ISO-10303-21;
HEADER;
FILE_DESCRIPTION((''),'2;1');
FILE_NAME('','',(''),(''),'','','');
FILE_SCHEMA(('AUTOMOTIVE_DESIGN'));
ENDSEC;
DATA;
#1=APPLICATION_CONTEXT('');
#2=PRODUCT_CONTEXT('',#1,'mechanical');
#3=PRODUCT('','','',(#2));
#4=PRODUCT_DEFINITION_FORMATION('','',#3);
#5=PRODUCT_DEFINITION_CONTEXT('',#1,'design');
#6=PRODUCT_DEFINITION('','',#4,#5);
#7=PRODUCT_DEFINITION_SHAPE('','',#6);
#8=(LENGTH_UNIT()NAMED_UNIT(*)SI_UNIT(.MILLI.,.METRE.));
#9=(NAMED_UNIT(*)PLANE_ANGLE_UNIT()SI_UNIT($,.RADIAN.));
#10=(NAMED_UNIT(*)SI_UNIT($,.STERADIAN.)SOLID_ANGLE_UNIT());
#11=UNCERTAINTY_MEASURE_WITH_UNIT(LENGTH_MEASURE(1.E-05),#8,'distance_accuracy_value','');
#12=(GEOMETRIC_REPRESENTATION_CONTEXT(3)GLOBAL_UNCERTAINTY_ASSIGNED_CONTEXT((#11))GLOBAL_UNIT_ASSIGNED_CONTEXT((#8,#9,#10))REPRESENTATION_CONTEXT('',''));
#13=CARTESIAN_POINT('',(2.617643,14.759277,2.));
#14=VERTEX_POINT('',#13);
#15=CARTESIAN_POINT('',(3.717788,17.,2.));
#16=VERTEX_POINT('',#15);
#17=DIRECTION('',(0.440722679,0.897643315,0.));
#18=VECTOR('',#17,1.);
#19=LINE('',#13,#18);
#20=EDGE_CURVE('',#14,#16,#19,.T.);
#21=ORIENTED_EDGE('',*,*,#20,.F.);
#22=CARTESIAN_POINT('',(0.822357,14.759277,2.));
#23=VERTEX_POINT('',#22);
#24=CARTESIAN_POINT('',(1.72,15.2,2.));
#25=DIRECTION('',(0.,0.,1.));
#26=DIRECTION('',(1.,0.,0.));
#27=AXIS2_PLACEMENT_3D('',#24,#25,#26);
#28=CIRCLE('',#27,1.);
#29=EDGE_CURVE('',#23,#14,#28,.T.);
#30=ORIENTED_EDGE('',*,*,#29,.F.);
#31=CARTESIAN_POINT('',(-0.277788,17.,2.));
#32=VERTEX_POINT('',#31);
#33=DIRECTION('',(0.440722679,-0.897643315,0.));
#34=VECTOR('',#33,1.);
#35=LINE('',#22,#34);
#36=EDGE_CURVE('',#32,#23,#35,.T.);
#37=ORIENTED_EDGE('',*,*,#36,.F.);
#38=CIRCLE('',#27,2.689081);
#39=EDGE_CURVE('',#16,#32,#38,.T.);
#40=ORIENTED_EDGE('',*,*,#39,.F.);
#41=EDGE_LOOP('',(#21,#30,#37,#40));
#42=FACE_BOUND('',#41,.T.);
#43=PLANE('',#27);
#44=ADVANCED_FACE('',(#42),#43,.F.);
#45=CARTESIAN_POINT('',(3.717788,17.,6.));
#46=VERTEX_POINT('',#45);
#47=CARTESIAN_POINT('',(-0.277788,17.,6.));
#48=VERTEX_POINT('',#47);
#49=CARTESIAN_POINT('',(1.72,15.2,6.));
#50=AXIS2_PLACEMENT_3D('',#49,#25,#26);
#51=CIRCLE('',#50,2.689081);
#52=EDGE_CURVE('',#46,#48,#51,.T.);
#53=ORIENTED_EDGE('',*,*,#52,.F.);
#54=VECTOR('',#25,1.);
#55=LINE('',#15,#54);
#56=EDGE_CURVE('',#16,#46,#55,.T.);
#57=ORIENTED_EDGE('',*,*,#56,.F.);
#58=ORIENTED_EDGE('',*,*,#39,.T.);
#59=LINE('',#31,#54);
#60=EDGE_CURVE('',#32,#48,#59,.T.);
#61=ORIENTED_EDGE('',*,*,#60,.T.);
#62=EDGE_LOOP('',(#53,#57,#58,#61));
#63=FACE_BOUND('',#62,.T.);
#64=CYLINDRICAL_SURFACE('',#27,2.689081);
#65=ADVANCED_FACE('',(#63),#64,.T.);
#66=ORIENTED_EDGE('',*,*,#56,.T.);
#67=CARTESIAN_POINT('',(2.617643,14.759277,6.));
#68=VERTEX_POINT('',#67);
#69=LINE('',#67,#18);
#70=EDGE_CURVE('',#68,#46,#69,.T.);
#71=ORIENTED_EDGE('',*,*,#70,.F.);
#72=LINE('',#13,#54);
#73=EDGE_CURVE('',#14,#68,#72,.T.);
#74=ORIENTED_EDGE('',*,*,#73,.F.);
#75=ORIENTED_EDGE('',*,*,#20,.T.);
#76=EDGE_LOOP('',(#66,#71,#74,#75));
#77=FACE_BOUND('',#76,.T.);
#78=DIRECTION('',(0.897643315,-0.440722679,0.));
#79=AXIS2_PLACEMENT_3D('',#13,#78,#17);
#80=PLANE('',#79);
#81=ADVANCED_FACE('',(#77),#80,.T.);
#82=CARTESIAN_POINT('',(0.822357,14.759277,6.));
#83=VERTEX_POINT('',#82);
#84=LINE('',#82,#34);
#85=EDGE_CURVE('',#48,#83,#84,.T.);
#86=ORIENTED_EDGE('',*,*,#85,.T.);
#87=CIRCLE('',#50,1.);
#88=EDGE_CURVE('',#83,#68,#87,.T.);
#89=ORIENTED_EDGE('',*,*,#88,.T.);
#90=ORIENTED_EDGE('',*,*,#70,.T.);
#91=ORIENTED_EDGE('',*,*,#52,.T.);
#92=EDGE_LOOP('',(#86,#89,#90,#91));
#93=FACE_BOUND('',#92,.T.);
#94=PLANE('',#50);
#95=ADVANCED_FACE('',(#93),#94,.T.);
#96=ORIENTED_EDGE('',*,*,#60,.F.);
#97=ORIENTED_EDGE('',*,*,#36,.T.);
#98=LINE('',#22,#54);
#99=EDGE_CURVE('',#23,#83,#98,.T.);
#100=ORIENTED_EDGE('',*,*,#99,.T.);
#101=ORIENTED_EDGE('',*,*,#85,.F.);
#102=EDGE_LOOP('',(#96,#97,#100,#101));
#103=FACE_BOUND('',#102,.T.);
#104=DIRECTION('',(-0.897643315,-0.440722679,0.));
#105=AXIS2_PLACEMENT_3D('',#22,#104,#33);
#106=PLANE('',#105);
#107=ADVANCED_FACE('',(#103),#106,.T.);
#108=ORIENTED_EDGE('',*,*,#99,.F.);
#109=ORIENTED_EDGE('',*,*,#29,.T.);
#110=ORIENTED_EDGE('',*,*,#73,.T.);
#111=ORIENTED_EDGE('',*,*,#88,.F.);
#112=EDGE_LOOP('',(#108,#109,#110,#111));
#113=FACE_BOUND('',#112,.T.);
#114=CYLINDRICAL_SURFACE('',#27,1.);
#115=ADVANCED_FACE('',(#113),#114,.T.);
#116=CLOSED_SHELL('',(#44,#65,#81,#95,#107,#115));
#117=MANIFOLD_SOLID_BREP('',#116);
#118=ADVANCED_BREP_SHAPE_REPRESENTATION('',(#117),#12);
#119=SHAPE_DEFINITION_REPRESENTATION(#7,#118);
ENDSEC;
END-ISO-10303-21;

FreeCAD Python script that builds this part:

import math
import FreeCAD as App
import Part
import Sketcher

V = App.Vector
Q = App.Units.Quantity

doc = App.newDocument("Part")
body = doc.addObject("PartDesign::Body", "Body")

# Sketch on XY plane
sketch1 = body.newObject("Sketcher::SketchObject", "Sketch")
sketch1.AttachmentSupport = (doc.getObject("XY_Plane"), [""])
sketch1.MapMode = "FlatFace"
sketch1.AttachmentOffset = App.Placement(V(0, 0, 6), App.Rotation())
sketch1.addGeometry([
    Part.LineSegment(V(-0.3, 17, 0), V(0.8, 14.8, 0)),
    Part.ArcOfCircle(Part.Circle(V(1.7, 15.2, 0), V(0, 0, 1), 1), math.radians(-154), math.radians(-26)),
    Part.LineSegment(V(2.6, 14.8, 0), V(3.7, 17, 0)),
    Part.ArcOfCircle(Part.Circle(V(1.7, 15.2, 0), V(0, 0, 1), 2.7), math.radians(42), math.radians(138)),
], False)
sketch1.addConstraint([
    Sketcher.Constraint("Tangent", 0, 2, 1, 1),
    Sketcher.Constraint("Tangent", 1, 2, 2, 1),
    Sketcher.Constraint("Coincident", 2, 2, 3, 1),
    Sketcher.Constraint("Coincident", 3, 2, 0, 1),
    Sketcher.Constraint("Coincident", 3, 3, 1, 3),
    Sketcher.Constraint("Horizontal", 0, 2, 1, 2),
    Sketcher.Constraint("Radius", 1, 1.0),
    Sketcher.Constraint("DistanceY", -1, 1, 2, 2, 17.0),
    Sketcher.Constraint("DistanceY", -1, 1, 1, 3, 15.2),
    Sketcher.Constraint("Angle", 0, Q("-63.85 deg")),
    Sketcher.Constraint("DistanceX", -1, 1, 1, 3, 1.72),
])
pad1 = body.newObject("PartDesign::Pad", "Pad")
pad1.Profile = sketch1
pad1.Length = 4
pad1.Reversed = True

doc.recompute()
